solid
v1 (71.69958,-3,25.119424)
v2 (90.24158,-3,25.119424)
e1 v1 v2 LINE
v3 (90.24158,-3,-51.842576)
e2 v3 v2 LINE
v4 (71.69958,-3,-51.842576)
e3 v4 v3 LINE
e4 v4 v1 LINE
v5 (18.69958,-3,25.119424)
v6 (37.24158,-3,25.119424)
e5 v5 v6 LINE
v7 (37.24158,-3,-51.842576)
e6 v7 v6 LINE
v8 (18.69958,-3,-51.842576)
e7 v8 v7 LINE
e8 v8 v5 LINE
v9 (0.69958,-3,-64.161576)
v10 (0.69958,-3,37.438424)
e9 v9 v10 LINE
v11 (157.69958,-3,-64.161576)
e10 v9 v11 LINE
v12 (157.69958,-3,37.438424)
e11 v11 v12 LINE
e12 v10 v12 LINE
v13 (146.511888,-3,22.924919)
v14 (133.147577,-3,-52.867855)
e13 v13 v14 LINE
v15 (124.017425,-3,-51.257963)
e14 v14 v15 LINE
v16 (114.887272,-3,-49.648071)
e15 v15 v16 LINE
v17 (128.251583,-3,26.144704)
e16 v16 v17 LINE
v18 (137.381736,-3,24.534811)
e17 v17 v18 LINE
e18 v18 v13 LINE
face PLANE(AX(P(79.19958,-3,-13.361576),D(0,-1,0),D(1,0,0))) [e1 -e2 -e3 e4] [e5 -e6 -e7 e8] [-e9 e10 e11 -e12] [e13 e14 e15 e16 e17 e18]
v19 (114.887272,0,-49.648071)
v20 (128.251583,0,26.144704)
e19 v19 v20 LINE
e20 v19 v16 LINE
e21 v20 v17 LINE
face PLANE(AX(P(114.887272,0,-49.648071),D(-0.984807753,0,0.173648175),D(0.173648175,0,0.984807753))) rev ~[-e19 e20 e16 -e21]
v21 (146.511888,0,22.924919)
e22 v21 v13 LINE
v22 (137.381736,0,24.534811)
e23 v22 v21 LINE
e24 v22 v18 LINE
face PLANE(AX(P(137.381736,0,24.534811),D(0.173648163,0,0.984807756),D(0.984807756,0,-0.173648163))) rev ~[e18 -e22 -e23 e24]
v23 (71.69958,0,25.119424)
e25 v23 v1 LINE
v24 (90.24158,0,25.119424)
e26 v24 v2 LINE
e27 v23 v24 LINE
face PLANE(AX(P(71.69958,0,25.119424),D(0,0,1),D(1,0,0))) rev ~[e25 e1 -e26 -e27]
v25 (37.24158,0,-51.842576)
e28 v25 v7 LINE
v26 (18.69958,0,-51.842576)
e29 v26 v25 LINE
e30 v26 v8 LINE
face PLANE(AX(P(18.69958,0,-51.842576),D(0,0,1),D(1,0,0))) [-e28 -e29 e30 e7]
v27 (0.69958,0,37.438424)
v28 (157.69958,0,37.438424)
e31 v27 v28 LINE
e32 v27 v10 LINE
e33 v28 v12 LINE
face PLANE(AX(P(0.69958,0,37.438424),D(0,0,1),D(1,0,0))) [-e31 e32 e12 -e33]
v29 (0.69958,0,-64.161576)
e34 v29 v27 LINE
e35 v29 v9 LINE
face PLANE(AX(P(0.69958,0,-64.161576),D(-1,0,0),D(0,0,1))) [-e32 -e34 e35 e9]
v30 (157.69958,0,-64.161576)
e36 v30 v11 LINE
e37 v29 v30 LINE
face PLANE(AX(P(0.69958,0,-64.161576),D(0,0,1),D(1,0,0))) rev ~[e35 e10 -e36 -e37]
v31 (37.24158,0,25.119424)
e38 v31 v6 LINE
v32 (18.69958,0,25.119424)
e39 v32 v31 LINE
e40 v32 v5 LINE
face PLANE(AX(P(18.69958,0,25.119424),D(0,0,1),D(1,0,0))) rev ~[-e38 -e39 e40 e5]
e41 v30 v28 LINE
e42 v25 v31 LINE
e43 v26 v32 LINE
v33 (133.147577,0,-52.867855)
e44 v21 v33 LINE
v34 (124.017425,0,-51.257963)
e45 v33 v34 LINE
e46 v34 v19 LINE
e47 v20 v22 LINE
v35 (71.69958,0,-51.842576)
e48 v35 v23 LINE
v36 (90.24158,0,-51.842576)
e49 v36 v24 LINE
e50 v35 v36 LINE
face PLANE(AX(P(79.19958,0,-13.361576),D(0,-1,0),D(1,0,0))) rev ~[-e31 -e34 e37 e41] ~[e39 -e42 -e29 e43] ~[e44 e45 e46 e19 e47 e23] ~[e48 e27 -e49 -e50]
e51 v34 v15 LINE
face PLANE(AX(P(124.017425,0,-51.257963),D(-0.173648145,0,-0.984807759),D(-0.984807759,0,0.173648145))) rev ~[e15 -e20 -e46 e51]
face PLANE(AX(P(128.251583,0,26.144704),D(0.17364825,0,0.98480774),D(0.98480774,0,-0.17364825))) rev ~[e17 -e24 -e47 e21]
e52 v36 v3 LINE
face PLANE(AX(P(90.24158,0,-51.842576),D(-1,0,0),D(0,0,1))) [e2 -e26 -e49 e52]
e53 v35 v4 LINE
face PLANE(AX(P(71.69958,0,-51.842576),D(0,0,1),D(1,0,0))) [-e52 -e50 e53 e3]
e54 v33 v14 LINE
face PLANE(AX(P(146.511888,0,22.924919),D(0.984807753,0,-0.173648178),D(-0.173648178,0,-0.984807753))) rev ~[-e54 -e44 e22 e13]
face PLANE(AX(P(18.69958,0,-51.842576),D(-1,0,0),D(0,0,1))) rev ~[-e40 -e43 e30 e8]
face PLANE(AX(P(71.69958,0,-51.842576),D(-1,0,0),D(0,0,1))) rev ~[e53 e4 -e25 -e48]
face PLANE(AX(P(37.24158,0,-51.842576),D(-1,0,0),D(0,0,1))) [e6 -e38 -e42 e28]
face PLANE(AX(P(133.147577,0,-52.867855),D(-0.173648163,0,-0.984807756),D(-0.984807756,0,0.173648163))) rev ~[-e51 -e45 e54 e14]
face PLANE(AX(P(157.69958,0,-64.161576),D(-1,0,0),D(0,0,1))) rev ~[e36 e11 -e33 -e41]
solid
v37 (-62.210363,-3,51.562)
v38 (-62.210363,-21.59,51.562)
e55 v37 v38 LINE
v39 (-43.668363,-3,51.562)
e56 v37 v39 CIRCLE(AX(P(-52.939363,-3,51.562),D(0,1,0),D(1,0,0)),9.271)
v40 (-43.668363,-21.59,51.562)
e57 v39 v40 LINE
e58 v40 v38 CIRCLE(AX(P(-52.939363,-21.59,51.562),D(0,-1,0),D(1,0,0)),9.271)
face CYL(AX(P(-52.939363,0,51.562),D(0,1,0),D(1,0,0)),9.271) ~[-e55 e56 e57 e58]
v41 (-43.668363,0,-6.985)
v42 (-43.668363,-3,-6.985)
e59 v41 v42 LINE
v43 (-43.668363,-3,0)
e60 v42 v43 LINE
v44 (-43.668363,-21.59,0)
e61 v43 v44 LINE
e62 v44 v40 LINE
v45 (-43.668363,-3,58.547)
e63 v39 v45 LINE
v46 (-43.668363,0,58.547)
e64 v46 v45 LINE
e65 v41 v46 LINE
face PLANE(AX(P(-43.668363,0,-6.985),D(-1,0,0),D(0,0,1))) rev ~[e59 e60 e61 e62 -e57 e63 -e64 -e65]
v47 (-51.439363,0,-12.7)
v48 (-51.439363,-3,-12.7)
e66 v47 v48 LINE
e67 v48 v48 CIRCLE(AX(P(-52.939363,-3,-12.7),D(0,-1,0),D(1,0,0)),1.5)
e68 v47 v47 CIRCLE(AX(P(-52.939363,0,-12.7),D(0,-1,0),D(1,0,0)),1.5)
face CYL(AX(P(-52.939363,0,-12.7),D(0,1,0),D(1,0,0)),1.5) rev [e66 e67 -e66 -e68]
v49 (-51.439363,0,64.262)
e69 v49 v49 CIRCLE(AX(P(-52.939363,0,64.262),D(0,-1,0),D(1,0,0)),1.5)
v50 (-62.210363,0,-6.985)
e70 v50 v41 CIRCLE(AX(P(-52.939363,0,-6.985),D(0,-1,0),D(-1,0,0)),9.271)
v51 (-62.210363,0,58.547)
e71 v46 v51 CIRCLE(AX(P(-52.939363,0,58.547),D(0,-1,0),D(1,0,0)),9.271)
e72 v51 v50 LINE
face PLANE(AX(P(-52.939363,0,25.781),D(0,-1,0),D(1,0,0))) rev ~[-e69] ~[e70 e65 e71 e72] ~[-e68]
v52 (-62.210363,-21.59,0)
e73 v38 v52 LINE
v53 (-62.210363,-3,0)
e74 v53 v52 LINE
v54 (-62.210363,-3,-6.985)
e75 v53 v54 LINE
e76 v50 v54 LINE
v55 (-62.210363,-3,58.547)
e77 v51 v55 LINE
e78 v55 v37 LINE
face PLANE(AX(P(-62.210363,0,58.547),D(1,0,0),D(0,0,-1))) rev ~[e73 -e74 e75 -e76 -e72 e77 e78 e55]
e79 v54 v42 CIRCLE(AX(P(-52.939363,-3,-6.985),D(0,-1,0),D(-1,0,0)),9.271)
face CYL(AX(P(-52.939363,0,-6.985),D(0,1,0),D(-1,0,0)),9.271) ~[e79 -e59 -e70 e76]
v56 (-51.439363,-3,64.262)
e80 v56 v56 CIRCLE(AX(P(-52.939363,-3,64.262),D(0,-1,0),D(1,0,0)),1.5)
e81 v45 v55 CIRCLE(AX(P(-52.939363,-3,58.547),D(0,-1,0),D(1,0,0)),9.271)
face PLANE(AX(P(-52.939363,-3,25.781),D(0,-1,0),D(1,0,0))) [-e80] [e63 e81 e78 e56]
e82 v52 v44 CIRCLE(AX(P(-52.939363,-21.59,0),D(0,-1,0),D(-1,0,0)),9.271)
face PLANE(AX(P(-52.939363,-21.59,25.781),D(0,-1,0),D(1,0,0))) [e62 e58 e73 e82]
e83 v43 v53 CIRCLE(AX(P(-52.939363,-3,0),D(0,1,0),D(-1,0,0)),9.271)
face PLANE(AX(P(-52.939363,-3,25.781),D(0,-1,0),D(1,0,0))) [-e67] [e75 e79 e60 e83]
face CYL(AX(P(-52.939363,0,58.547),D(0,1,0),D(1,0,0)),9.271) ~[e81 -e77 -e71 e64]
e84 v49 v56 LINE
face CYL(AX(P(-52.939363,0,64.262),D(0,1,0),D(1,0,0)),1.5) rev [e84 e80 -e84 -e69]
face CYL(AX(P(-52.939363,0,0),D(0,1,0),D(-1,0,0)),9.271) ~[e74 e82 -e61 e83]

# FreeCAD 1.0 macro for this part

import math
import FreeCAD as App
import Part
import Sketcher

V = App.Vector
Q = App.Units.Quantity

doc = App.newDocument("Part")
body = doc.addObject("PartDesign::Body", "Body")

# Sketch on XZ plane
sketch1 = body.newObject("Sketcher::SketchObject", "Sketch")
sketch1.AttachmentSupport = (doc.getObject("XZ_Plane"), [""])
sketch1.MapMode = "FlatFace"
sketch1.addGeometry([
    Part.LineSegment(V(-44, 0, 0), V(-44, 52, 0)),
    Part.ArcOfCircle(Part.Circle(V(-53, 52, 0), V(0, 0, 1), 9), math.radians(0), math.radians(180)),
    Part.LineSegment(V(-62, 52, 0), V(-62, 0, 0)),
    Part.ArcOfCircle(Part.Circle(V(-53, 0, 0), V(0, 0, 1), 9), math.radians(180), math.radians(360)),
], False)
sketch1.addConstraint([
    Sketcher.Constraint("Tangent", 0, 2, 1, 1),
    Sketcher.Constraint("Tangent", 1, 2, 2, 1),
    Sketcher.Constraint("Tangent", 2, 2, 3, 1),
    Sketcher.Constraint("Tangent", 3, 2, 0, 1),
    Sketcher.Constraint("Vertical", 0),
    Sketcher.Constraint("Vertical", 2),
    Sketcher.Constraint("PointOnObject", 3, 3, -1),
    Sketcher.Constraint("Radius", 1, Q("0.365 in")),
    Sketcher.Constraint("DistanceY", 0, 1, 0, 2, Q("2.03 in")),
    Sketcher.Constraint("DistanceX", 1, 3, -1, 1, 52.939363),
])
pad1 = body.newObject("PartDesign::Pad", "Pad")
pad1.Profile = sketch1
pad1.Length = Q("0.85 in")

# Sketch on XZ plane
sketch2 = body.newObject("Sketcher::SketchObject", "Sketch001")
sketch2.AttachmentSupport = (doc.getObject("XZ_Plane"), [""])
sketch2.MapMode = "FlatFace"
sketch2.addGeometry([
    Part.ArcOfCircle(Part.Circle(V(-52.9, 58.5, 0), V(0, 0, 1), 9.3), math.radians(0), math.radians(180)),  # 0
    Part.LineSegment(V(-62.2, 58.5, 0), V(-62.2, -7, 0)),  # 1
    Part.ArcOfCircle(Part.Circle(V(-52.9, -7, 0), V(0, 0, 1), 9.3), math.radians(180), math.radians(360)),  # 2
    Part.LineSegment(V(-43.7, -7, 0), V(-43.7, 58.5, 0)),  # 3
    Part.Circle(V(-52.9, -12.7, 0), V(0, 0, 1), 1.5),  # 4
    Part.Circle(V(-52.9, 64.3, 0), V(0, 0, 1), 1.5),  # 5
], False)
sketch2.addConstraint([
    Sketcher.Constraint("Tangent", 0, 2, 1, 1),
    Sketcher.Constraint("Tangent", 1, 2, 2, 1),
    Sketcher.Constraint("Tangent", 2, 2, 3, 1),
    Sketcher.Constraint("Tangent", 3, 2, 0, 1),
    Sketcher.Constraint("Vertical", 1),
    Sketcher.Constraint("Vertical", 3),
    Sketcher.Constraint("Equal", 4, 5),
    Sketcher.Constraint("Vertical", 2, 3, 4, 3),
    Sketcher.Constraint("Vertical", 4, 3, 5, 3),
    Sketcher.Constraint("Radius", 0, Q("0.365 in")),
    Sketcher.Constraint("DistanceY", 1, 2, 1, 1, Q("2.58 in")),
    Sketcher.Constraint("DistanceY", 4, 3, -1, 1, Q("0.5 in")),
    Sketcher.Constraint("Diameter", 4, 3.0),
    Sketcher.Constraint("DistanceY", -1, 1, 5, 3, Q("2.53 in")),
    Sketcher.Constraint("DistanceY", -1, 1, 0, 3, Q("2.305 in")),
    Sketcher.Constraint("DistanceX", 0, 3, -1, 1, 52.939363),
])
pad2 = body.newObject("PartDesign::Pad", "Pad001")
pad2.Profile = sketch2
pad2.Length = 3
body2 = doc.addObject("PartDesign::Body", "Body001")

# Sketch on XZ plane
sketch3 = body2.newObject("Sketcher::SketchObject", "Sketch002")
sketch3.AttachmentSupport = (doc.getObject("XZ_Plane001"), [""])
sketch3.MapMode = "FlatFace"
sketch3.addGeometry([
    Part.LineSegment(V(1, 37, 0), V(1, -64, 0)),  # 0
    Part.LineSegment(V(1, -64, 0), V(158, -64, 0)),  # 1
    Part.LineSegment(V(158, -64, 0), V(158, 37, 0)),  # 2
    Part.LineSegment(V(158, 37, 0), V(1, 37, 0)),  # 3
    Part.LineSegment(V(37, -52, 0), V(19, -52, 0)),  # 4
    Part.LineSegment(V(19, -52, 0), V(19, 25, 0)),  # 5
    Part.LineSegment(V(19, 25, 0), V(37, 25, 0)),  # 6
    Part.LineSegment(V(37, 25, 0), V(37, -52, 0)),  # 7
    Part.LineSegment(V(90, -52, 0), V(72, -52, 0)),  # 8
    Part.LineSegment(V(72, -52, 0), V(72, 25, 0)),  # 9
    Part.LineSegment(V(72, 25, 0), V(90, 25, 0)),  # 10
    Part.LineSegment(V(90, 25, 0), V(90, -52, 0)),  # 11
    Part.LineSegment(V(124, -51, 0), V(115, -50, 0)),  # 12
    Part.LineSegment(V(115, -50, 0), V(128, 26, 0)),  # 13
    Part.LineSegment(V(128, 26, 0), V(137, 25, 0)),  # 14
    Part.LineSegment(V(137, 25, 0), V(147, 23, 0)),  # 15
    Part.LineSegment(V(147, 23, 0), V(133, -53, 0)),  # 16
    Part.LineSegment(V(133, -53, 0), V(124, -51, 0)),  # 17
], False)
sketch3.addConstraint([
    Sketcher.Constraint("Coincident", 0, 2, 1, 1),
    Sketcher.Constraint("Coincident", 1, 2, 2, 1),
    Sketcher.Constraint("Coincident", 2, 2, 3, 1),
    Sketcher.Constraint("Coincident", 3, 2, 0, 1),
    Sketcher.Constraint("Coincident", 4, 2, 5, 1),
    Sketcher.Constraint("Coincident", 5, 2, 6, 1),
    Sketcher.Constraint("Coincident", 6, 2, 7, 1),
    Sketcher.Constraint("Coincident", 7, 2, 4, 1),
    Sketcher.Constraint("Coincident", 8, 2, 9, 1),
    Sketcher.Constraint("Coincident", 9, 2, 10, 1),
    Sketcher.Constraint("Coincident", 10, 2, 11, 1),
    Sketcher.Constraint("Coincident", 11, 2, 8, 1),
    Sketcher.Constraint("Coincident", 12, 2, 13, 1),
    Sketcher.Constraint("Coincident", 13, 2, 14, 1),
    Sketcher.Constraint("Coincident", 14, 2, 15, 1),
    Sketcher.Constraint("Coincident", 15, 2, 16, 1),
    Sketcher.Constraint("Coincident", 16, 2, 17, 1),
    Sketcher.Constraint("Coincident", 17, 2, 12, 1),
    Sketcher.Constraint("Vertical", 0),
    Sketcher.Constraint("Horizontal", 1),
    Sketcher.Constraint("Vertical", 2),
    Sketcher.Constraint("Horizontal", 3),
    Sketcher.Constraint("Horizontal", 4),
    Sketcher.Constraint("Vertical", 5),
    Sketcher.Constraint("Horizontal", 6),
    Sketcher.Constraint("Vertical", 7),
    Sketcher.Constraint("Horizontal", 8),
    Sketcher.Constraint("Vertical", 9),
    Sketcher.Constraint("Horizontal", 10),
    Sketcher.Constraint("Vertical", 11),
    Sketcher.Constraint("Perpendicular", 12, 13),
    Sketcher.Constraint("Perpendicular", 13, 14),
    Sketcher.Constraint("Parallel", 14, 15),
    Sketcher.Constraint("Perpendicular", 15, 16),
    Sketcher.Constraint("Perpendicular", 16, 17),
    Sketcher.Constraint("Horizontal", 7, 2, 8, 2),
    Sketcher.Constraint("Horizontal", 6, 2, 9, 2),
    Sketcher.Constraint("Equal", 6, 8),
    Sketcher.Constraint("Equal", 12, 14),
    Sketcher.Constraint("Equal", 14, 15),
    Sketcher.Constraint("DistanceY", 0, 2, 0, 1, Q("4 in")),
    Sketcher.Constraint("Angle", 12, Q("170.000002 deg")),
    Sketcher.Constraint("DistanceX", 4, 2, 4, 1, Q("0.73 in")),
    Sketcher.Constraint("DistanceY", 5, 1, 5, 2, Q("3.03 in")),
    Sketcher.Constraint("Distance", 13, Q("3.03 in")),
    Sketcher.Constraint("Distance", 12, Q("0.365 in")),
    Sketcher.Constraint("DistanceY", 0, 2, 4, 2, Q("0.485 in")),
    Sketcher.Constraint("DistanceX", 1, 1, 1, 2, 157.0),
    Sketcher.Constraint("DistanceX", 0, 2, 4, 2, 18.0),
    Sketcher.Constraint("DistanceX", 7, 2, 8, 2, 34.458),
    Sketcher.Constraint("DistanceX", -1, 1, 0, 2, 0.69958),
    Sketcher.Constraint("DistanceX", -1, 1, 12, 2, 114.887272),
    Sketcher.Constraint("DistanceY", 12, 2, -1, 1, 49.648071),
    Sketcher.Constraint("DistanceY", 13, 2, 2, 2, 11.29372),
])
pad3 = body2.newObject("PartDesign::Pad", "Pad002")
pad3.Profile = sketch3
pad3.Length = 3

doc.recompute()
